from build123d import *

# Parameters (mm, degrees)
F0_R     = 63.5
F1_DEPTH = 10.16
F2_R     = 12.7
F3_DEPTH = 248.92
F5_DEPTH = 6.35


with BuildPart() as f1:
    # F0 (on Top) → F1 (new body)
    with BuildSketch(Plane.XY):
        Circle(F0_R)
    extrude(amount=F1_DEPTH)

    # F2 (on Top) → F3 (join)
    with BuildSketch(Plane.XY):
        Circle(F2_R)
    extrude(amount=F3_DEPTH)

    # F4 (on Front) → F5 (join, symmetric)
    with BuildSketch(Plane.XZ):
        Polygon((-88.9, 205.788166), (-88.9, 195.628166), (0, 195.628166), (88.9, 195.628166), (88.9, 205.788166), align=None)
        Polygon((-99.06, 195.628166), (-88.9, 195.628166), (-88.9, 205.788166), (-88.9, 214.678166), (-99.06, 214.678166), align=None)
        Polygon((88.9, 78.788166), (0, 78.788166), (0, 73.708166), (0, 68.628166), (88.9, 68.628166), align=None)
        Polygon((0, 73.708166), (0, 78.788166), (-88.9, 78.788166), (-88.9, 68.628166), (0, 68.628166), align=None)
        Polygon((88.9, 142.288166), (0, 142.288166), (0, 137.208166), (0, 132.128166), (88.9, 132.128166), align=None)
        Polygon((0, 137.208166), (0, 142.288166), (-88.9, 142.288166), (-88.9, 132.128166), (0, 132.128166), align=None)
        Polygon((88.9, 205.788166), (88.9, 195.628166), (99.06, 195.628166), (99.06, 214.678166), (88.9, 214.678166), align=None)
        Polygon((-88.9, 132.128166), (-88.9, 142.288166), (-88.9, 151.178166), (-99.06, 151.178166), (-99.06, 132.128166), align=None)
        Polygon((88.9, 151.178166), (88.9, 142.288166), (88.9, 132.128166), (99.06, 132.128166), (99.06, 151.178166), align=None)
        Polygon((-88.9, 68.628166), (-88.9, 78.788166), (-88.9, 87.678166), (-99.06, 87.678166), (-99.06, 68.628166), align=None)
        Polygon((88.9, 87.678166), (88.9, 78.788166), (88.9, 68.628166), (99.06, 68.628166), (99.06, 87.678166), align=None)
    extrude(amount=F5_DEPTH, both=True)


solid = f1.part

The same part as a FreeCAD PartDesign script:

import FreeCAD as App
import Part
import Sketcher

V = App.Vector
Q = App.Units.Quantity


def add_polygon(sketch, points):
    """Adds a closed chain of lines whose ends are joined by coincident constraints."""
    first, n = sketch.GeometryCount, len(points)
    for a, b in zip(points, points[1:] + points[:1]):
        sketch.addGeometry(Part.LineSegment(App.Vector(*a, 0), App.Vector(*b, 0)), False)
    for i in range(n):
        sketch.addConstraint(Sketcher.Constraint("Coincident", first + i, 2, first + (i + 1) % n, 1))

doc = App.newDocument("Part")
body = doc.addObject("PartDesign::Body", "Body")

sketch1 = doc.addObject("Sketcher::SketchObject", "Sketch")
body.addObject(sketch1)
sketch1.AttachmentSupport = (doc.XY_Plane, [""])
sketch1.MapMode = "FlatFace"
sketch1.addGeometry(Part.Circle(V(0, 0, 0), V(0, 0, 1), 64), False)
sketch1.addConstraint([
    Sketcher.Constraint("Coincident", 0, 3, -1, 1),
    Sketcher.Constraint("Diameter", 0, Q("5 in")),
])
pad1 = doc.addObject("PartDesign::Pad", "Pad")
body.addObject(pad1)
pad1.Profile = sketch1
pad1.Length = Q("0.4 in")

sketch2 = doc.addObject("Sketcher::SketchObject", "Sketch001")
body.addObject(sketch2)
sketch2.AttachmentSupport = (doc.XY_Plane, [""])
sketch2.MapMode = "FlatFace"
sketch2.addGeometry(Part.Circle(V(0, 0, 0), V(0, 0, 1), 13), False)
sketch2.addConstraint([
    Sketcher.Constraint("Coincident", 0, 3, -1, 1),
    Sketcher.Constraint("Diameter", 0, Q("1 in")),
])
pad2 = doc.addObject("PartDesign::Pad", "Pad001")
body.addObject(pad2)
pad2.Profile = sketch2
pad2.Length = Q("9.8 in")

sketch3 = doc.addObject("Sketcher::SketchObject", "Sketch002")
body.addObject(sketch3)
sketch3.AttachmentSupport = (doc.XZ_Plane, [""])
sketch3.MapMode = "FlatFace"
add_polygon(sketch3, [(89, 206), (-89, 206), (-89, 215), (-99, 215), (-99, 196), (99, 196), (99, 215), (89, 215)])
add_polygon(sketch3, [(89, 79), (-89, 79), (-89, 88), (-99, 88), (-99, 69), (99, 69), (99, 88), (89, 88)])
add_polygon(sketch3, [(89, 142), (-89, 142), (-89, 151), (-99, 151), (-99, 132), (99, 132), (99, 151), (89, 151)])
sketch3.addConstraint([
    Sketcher.Constraint("Horizontal", 0),
    Sketcher.Constraint("Vertical", 1),
    Sketcher.Constraint("Horizontal", 2),
    Sketcher.Constraint("Vertical", 3),
    Sketcher.Constraint("Horizontal", 4),
    Sketcher.Constraint("Vertical", 5),
    Sketcher.Constraint("Horizontal", 6),
    Sketcher.Constraint("Vertical", 7),
    Sketcher.Constraint("Horizontal", 8),
    Sketcher.Constraint("Vertical", 9),
    Sketcher.Constraint("Horizontal", 10),
    Sketcher.Constraint("Vertical", 11),
    Sketcher.Constraint("Horizontal", 12),
    Sketcher.Constraint("Vertical", 13),
    Sketcher.Constraint("Horizontal", 14),
    Sketcher.Constraint("Vertical", 15),
    Sketcher.Constraint("Horizontal", 16),
    Sketcher.Constraint("Vertical", 17),
    Sketcher.Constraint("Horizontal", 18),
    Sketcher.Constraint("Vertical", 19),
    Sketcher.Constraint("Horizontal", 20),
    Sketcher.Constraint("Vertical", 21),
    Sketcher.Constraint("Horizontal", 22),
    Sketcher.Constraint("Vertical", 23),
    Sketcher.Constraint("Symmetric", 2, 2, 5, 2, -2),
    Sketcher.Constraint("Symmetric", 10, 2, 13, 2, -2),
    Sketcher.Constraint("Symmetric", 18, 2, 21, 2, -2),
    Sketcher.Constraint("Vertical", 1, 2, 8, 2),
    Sketcher.Constraint("Vertical", 3, 2, 10, 2),
    Sketcher.Constraint("Vertical", 7, 2, 14, 2),
    Sketcher.Constraint("Vertical", 9, 2, 16, 2),
    Sketcher.Constraint("Vertical", 11, 2, 18, 2),
    Sketcher.Constraint("Vertical", 15, 2, 22, 2),
    Sketcher.Constraint("Equal", 2, 6),
    Sketcher.Constraint("Equal", 7, 9),
    Sketcher.Constraint("Equal", 5, 11),
    Sketcher.Constraint("Equal", 15, 17),
    Sketcher.Constraint("Equal", 13, 19),
    Sketcher.Constraint("DistanceX", 0, 2, 0, 1, Q("7 in")),
    Sketcher.Constraint("DistanceX", 2, 2, 2, 1, Q("0.4 in")),
    Sketcher.Constraint("DistanceY", 8, 2, 0, 2, Q("5 in")),
    Sketcher.Constraint("DistanceY", 1, 1, 1, 2, Q("0.35 in")),
    Sketcher.Constraint("DistanceY", 3, 2, 3, 1, Q("0.75 in")),
    Sketcher.Constraint("DistanceY", 16, 2, 3, 2, Q("2.1 in")),
    Sketcher.Constraint("DistanceY", -1, 1, 0, 2, Q("205.788166 mm")),
])
pad3 = doc.addObject("PartDesign::Pad", "Pad002")
body.addObject(pad3)
pad3.Profile = sketch3
pad3.Length = Q("0.5 in")
pad3.Midplane = True

doc.recompute()
